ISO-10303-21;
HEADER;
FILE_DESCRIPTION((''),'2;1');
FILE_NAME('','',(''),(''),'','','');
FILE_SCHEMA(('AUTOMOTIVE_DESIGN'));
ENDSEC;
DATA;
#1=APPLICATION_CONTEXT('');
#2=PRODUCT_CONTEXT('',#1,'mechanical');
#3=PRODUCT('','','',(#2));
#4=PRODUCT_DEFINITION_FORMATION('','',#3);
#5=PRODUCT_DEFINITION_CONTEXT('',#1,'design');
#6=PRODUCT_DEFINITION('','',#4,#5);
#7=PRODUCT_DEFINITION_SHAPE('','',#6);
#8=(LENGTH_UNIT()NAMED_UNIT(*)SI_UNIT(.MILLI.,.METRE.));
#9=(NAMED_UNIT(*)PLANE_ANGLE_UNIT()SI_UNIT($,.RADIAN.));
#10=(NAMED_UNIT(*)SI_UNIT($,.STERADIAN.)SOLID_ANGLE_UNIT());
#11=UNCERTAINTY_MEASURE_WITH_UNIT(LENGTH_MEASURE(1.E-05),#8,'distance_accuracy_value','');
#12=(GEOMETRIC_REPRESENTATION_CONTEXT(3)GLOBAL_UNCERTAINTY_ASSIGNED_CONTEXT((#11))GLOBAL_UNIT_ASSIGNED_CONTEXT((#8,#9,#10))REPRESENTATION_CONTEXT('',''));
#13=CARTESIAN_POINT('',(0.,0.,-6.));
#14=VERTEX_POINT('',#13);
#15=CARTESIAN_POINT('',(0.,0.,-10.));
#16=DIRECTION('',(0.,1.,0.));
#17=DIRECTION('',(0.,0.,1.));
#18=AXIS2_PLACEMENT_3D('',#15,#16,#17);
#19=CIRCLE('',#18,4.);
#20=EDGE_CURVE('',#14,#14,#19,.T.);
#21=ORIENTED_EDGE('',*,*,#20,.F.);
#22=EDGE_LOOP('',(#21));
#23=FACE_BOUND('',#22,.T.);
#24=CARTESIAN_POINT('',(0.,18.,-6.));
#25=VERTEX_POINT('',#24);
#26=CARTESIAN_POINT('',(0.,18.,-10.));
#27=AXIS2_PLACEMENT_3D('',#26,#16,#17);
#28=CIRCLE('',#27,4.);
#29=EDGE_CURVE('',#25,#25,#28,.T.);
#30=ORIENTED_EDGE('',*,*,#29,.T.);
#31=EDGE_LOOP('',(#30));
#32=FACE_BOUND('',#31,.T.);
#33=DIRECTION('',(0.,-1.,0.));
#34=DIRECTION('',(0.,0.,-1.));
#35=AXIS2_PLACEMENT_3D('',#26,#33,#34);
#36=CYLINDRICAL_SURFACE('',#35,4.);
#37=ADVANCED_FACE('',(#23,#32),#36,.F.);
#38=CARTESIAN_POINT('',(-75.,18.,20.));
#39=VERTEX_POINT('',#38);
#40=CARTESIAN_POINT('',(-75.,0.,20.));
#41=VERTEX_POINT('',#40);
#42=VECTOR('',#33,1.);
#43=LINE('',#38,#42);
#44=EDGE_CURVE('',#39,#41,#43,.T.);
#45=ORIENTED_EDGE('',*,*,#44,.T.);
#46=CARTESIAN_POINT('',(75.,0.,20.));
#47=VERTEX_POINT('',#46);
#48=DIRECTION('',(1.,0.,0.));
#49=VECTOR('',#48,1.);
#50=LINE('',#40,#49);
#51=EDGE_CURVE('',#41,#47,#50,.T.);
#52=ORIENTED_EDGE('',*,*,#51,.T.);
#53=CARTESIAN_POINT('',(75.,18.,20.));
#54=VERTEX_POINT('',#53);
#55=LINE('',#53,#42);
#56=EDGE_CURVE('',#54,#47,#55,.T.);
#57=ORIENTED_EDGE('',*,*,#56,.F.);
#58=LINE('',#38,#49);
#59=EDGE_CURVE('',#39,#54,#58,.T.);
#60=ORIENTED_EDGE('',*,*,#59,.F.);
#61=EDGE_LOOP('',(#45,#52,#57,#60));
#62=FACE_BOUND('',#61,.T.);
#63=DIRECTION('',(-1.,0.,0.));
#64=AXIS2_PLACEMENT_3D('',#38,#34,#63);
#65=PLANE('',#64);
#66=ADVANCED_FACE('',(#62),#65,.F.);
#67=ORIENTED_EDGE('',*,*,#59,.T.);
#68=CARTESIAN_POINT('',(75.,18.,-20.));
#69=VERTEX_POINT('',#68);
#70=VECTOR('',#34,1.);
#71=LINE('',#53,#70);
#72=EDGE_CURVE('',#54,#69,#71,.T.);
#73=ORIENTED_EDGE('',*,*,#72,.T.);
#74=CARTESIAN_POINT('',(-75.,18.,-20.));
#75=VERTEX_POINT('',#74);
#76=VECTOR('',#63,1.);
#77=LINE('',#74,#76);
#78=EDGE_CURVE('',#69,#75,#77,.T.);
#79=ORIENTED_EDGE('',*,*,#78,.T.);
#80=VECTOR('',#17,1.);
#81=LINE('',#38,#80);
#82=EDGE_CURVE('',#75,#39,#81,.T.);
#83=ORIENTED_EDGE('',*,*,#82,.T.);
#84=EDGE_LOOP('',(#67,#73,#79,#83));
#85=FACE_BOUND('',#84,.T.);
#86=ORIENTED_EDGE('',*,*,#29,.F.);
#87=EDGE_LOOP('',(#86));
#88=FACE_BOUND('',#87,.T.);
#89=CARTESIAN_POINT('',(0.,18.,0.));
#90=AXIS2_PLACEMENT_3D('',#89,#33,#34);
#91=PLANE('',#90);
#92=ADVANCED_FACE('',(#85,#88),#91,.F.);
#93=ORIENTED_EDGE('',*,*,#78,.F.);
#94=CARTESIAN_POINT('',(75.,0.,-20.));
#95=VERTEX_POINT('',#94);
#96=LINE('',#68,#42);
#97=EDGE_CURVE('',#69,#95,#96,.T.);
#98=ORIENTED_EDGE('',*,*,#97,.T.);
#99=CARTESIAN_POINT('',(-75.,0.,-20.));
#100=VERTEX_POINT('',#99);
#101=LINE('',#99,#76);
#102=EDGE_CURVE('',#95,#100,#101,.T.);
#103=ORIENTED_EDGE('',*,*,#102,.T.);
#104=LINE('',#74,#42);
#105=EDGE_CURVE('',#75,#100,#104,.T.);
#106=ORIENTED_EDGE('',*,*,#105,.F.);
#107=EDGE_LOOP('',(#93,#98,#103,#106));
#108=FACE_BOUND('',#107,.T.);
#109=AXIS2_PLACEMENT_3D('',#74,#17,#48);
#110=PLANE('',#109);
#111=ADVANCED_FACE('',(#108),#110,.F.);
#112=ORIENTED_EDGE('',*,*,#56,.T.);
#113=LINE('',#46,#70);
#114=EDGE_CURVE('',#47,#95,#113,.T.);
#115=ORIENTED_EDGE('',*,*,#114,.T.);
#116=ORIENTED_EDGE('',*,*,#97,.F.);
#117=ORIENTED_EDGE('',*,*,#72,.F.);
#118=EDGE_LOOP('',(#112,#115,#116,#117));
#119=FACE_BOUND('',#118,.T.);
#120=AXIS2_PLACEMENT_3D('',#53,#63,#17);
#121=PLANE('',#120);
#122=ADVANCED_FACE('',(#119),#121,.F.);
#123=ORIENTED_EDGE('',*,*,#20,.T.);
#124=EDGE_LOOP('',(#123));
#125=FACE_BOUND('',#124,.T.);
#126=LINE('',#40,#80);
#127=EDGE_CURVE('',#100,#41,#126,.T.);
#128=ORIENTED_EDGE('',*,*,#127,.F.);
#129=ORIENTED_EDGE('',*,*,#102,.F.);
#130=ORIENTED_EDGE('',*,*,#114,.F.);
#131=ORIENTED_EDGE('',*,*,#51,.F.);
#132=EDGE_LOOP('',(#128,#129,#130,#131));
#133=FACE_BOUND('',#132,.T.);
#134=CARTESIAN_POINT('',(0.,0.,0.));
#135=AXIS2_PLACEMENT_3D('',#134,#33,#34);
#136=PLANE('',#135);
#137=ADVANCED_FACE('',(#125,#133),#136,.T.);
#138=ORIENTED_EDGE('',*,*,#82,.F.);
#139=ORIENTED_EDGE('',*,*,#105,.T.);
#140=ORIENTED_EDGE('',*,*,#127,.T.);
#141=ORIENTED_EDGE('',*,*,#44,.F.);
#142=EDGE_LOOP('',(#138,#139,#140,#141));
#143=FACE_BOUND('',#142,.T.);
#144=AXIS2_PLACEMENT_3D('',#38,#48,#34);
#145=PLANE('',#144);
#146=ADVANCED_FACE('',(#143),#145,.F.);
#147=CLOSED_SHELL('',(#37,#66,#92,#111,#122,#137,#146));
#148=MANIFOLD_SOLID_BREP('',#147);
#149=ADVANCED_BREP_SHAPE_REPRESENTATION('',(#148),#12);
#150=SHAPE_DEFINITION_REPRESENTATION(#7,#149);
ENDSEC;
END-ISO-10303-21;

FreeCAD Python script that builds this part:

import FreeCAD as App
import Part
import Sketcher

V = App.Vector

doc = App.newDocument("Part")
body = doc.addObject("PartDesign::Body", "Body")

sketch1 = body.newObject("Sketcher::SketchObject", "Sketch")
sketch1.AttachmentSupport = (doc.getObject("XZ_Plane"), [""])
sketch1.MapMode = "FlatFace"
sketch1.addGeometry([
    Part.LineSegment(V(-75, -20, 0), V(-75, 20, 0)),
    Part.LineSegment(V(-75, 20, 0), V(75, 20, 0)),
    Part.LineSegment(V(75, 20, 0), V(75, -20, 0)),
    Part.LineSegment(V(75, -20, 0), V(-75, -20, 0)),
    Part.Circle(V(0, -10, 0), V(0, 0, 1), 4),
], False)
sketch1.addConstraint([
    Sketcher.Constraint("Coincident", 0, 2, 1, 1),
    Sketcher.Constraint("Coincident", 1, 2, 2, 1),
    Sketcher.Constraint("Coincident", 2, 2, 3, 1),
    Sketcher.Constraint("Coincident", 3, 2, 0, 1),
    Sketcher.Constraint("Vertical", 0),
    Sketcher.Constraint("Horizontal", 1),
    Sketcher.Constraint("Vertical", 2),
    Sketcher.Constraint("Horizontal", 3),
    Sketcher.Constraint("Symmetric", 0, 2, 2, 2, -1, 1),
    Sketcher.Constraint("PointOnObject", 4, 3, -2),
    Sketcher.Constraint("Diameter", 4, 8.0),
    Sketcher.Constraint("DistanceX", 1, 1, 1, 2, 150.0),
    Sketcher.Constraint("DistanceY", 0, 1, 0, 2, 40.0),
    Sketcher.Constraint("DistanceY", 4, 3, -1, 1, 10.0),
])
pad1 = body.newObject("PartDesign::Pad", "Pad")
pad1.Profile = sketch1
pad1.Length = 18
pad1.Reversed = True

doc.recompute()
